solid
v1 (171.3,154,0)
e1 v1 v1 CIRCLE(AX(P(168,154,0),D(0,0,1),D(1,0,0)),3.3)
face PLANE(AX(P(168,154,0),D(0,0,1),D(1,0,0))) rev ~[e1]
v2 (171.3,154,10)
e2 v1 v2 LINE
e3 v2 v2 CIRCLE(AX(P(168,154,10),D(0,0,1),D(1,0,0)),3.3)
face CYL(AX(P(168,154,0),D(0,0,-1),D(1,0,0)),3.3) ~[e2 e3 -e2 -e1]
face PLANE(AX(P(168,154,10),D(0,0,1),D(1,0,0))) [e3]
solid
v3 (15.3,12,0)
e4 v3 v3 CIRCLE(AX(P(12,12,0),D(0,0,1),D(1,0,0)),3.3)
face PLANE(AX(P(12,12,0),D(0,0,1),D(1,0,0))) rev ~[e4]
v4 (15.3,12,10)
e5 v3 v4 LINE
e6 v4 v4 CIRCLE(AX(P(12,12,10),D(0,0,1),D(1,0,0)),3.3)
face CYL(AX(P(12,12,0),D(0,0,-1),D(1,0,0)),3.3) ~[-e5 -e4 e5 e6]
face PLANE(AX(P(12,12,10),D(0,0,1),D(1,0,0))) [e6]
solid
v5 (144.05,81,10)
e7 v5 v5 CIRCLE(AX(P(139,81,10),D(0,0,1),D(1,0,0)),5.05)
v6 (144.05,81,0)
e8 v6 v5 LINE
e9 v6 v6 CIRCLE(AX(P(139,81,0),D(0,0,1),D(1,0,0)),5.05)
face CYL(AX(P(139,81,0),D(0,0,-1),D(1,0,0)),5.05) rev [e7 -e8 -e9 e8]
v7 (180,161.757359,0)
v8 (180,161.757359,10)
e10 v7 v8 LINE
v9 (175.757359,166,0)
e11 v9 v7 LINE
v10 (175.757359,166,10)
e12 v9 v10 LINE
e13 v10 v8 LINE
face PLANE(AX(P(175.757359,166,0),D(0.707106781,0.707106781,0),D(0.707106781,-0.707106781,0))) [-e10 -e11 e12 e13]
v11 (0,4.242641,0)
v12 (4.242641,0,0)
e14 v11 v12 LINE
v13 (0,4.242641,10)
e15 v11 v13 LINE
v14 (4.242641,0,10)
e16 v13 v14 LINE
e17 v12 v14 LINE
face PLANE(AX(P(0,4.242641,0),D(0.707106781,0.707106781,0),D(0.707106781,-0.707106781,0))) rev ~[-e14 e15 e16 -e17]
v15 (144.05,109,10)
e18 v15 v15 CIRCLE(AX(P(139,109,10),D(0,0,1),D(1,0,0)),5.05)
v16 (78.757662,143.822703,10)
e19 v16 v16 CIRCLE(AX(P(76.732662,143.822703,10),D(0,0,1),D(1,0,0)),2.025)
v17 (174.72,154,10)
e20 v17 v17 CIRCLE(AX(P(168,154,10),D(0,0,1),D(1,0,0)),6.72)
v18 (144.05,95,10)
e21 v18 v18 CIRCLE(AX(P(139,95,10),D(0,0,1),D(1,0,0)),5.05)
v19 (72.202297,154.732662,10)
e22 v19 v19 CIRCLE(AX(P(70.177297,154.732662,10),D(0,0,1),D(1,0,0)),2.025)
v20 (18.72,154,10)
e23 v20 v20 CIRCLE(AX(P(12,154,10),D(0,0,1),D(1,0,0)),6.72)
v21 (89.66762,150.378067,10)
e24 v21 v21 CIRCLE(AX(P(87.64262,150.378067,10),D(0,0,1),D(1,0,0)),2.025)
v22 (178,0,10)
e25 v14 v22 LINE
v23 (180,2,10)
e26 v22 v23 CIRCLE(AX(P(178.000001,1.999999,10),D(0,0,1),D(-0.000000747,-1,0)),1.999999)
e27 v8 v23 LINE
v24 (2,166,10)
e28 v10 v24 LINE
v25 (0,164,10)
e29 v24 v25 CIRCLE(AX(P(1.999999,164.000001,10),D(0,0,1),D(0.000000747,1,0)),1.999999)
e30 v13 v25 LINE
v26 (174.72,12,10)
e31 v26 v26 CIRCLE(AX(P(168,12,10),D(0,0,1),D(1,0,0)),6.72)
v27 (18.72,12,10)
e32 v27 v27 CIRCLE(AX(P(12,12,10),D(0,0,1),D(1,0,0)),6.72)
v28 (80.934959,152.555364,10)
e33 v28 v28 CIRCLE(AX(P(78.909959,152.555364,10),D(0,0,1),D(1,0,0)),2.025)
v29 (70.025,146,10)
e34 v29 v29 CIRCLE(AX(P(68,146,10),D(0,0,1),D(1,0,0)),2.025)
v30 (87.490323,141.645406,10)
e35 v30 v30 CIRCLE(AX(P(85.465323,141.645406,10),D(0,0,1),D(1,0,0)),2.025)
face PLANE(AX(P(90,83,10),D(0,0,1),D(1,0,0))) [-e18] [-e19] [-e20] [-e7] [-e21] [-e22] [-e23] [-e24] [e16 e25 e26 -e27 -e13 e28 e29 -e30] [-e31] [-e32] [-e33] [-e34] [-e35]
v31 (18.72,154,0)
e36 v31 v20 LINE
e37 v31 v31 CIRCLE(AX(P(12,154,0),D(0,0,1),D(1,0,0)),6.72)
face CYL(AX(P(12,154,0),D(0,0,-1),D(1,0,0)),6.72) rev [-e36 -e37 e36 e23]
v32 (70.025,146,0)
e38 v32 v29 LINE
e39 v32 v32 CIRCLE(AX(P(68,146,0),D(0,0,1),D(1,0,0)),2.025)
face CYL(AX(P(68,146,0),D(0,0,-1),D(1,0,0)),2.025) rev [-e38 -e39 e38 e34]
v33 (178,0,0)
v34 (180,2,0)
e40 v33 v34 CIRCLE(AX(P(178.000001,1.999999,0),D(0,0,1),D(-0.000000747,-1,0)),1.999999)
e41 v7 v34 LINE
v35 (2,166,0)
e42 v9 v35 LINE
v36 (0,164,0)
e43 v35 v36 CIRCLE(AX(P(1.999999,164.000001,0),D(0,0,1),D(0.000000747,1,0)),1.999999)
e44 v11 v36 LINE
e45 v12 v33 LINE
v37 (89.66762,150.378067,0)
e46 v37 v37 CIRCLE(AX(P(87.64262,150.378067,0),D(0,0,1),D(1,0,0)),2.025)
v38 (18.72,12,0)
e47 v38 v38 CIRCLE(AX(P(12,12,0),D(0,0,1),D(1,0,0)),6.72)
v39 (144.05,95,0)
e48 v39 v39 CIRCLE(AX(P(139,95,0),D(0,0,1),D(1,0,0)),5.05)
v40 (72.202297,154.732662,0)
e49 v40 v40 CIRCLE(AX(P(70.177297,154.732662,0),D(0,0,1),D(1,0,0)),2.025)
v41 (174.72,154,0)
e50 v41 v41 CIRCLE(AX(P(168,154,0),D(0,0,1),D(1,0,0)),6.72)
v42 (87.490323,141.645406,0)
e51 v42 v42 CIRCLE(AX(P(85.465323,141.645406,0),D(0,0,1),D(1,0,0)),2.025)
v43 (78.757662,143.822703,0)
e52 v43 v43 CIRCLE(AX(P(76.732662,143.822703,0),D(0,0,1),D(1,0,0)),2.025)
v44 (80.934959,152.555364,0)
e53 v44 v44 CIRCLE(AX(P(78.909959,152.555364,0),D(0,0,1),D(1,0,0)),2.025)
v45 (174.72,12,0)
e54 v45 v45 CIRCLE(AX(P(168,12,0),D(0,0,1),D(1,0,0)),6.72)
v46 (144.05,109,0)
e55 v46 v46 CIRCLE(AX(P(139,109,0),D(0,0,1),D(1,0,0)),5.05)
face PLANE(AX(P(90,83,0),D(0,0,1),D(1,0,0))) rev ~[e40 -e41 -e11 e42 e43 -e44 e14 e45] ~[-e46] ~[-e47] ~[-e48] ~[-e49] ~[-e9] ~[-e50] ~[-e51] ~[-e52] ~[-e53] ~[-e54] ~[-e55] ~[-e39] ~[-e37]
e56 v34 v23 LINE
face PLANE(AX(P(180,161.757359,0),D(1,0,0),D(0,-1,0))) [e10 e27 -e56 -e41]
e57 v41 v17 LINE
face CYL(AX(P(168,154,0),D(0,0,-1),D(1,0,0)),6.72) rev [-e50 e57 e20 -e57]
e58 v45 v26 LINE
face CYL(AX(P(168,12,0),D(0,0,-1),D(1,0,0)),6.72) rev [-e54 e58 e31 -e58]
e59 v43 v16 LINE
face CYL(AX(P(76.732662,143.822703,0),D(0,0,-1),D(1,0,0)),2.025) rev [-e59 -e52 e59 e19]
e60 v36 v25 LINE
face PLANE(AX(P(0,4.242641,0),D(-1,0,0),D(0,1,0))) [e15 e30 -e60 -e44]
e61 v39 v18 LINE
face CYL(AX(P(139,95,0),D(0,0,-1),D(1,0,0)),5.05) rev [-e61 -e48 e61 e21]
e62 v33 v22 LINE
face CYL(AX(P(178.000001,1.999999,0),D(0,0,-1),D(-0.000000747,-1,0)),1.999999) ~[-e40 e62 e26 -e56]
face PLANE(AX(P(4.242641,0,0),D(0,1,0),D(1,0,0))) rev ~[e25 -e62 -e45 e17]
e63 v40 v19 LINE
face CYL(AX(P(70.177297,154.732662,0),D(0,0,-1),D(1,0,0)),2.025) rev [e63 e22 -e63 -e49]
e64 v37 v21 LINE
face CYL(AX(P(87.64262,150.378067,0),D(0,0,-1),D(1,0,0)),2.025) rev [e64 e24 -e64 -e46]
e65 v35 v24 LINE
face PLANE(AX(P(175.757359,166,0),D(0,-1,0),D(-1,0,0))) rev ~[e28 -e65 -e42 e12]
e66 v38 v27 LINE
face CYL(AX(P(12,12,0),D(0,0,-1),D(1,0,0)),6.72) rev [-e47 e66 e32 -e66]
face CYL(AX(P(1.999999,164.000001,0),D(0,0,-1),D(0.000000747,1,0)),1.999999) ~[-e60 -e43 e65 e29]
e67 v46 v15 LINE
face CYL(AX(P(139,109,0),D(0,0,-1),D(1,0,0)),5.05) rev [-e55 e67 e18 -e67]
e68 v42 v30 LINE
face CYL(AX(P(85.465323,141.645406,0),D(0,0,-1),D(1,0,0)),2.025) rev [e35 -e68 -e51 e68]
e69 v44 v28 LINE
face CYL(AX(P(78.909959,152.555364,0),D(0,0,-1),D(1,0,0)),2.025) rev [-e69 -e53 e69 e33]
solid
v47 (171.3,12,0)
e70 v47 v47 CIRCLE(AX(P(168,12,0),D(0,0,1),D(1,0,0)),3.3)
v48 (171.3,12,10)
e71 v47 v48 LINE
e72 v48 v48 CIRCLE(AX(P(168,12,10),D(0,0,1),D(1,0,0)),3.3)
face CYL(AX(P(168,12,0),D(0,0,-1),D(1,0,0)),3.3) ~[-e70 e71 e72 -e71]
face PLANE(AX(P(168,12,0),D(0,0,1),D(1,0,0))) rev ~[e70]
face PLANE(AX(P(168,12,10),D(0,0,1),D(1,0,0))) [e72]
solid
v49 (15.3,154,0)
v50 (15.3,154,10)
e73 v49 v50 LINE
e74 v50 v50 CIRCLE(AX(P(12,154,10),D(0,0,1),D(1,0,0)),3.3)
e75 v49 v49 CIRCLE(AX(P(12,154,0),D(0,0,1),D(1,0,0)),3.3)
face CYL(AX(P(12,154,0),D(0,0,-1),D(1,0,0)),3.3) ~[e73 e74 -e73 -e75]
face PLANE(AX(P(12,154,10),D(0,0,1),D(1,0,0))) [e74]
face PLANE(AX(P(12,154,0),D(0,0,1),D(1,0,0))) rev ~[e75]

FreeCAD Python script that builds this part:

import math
import FreeCAD as App
import Part
import Sketcher
from FreeCAD import Vector
Q = App.Units.Quantity

doc = App.newDocument("Part")
body = doc.addObject("PartDesign::Body", "Body")
body.AllowCompound = True

sketch1 = body.newObject("Sketcher::SketchObject", "Sketch")
sketch1.AttachmentSupport = (doc.getObject("XY_Plane"), [""])
sketch1.MapMode = "FlatFace"
sketch1.addGeometry([
    Part.ArcOfCircle(Part.Circle(Vector(2, 164, 0), Vector(0, 0, 1), 2), math.radians(90), math.radians(180)),
    Part.LineSegment(Vector(0, 164, 0), Vector(0, 4.2, 0)),
    Part.LineSegment(Vector(0, 4.2, 0), Vector(4.2, 0, 0)),
    Part.LineSegment(Vector(4.2, 0, 0), Vector(178, 0, 0)),
    Part.ArcOfCircle(Part.Circle(Vector(178, 2, 0), Vector(0, 0, 1), 2), math.radians(-90), math.radians(0)),
    Part.LineSegment(Vector(180, 2, 0), Vector(180, 161.8, 0)),
    Part.LineSegment(Vector(180, 161.8, 0), Vector(175.8, 166, 0)),
    Part.LineSegment(Vector(175.8, 166, 0), Vector(2, 166, 0)),
    Part.Circle(Vector(12, 12, 0), Vector(0, 0, 1), 6.7),
    Part.Circle(Vector(168, 12, 0), Vector(0, 0, 1), 6.7),
    Part.Circle(Vector(139, 81, 0), Vector(0, 0, 1), 5),
    Part.Circle(Vector(12, 154, 0), Vector(0, 0, 1), 6.7),
    Part.Circle(Vector(68, 146, 0), Vector(0, 0, 1), 2),
    Part.Circle(Vector(76.7, 143.8, 0), Vector(0, 0, 1), 2),
    Part.Circle(Vector(85.5, 141.6, 0), Vector(0, 0, 1), 2),
    Part.Circle(Vector(87.6, 150.4, 0), Vector(0, 0, 1), 2),
    Part.Circle(Vector(70.2, 154.7, 0), Vector(0, 0, 1), 2),
    Part.Circle(Vector(78.9, 152.6, 0), Vector(0, 0, 1), 2),
    Part.Circle(Vector(139, 95, 0), Vector(0, 0, 1), 5),
    Part.Circle(Vector(139, 109, 0), Vector(0, 0, 1), 5),
    Part.Circle(Vector(168, 154, 0), Vector(0, 0, 1), 6.7),
    Part.Circle(Vector(12, 154, 0), Vector(0, 0, 1), 3.3),
    Part.Circle(Vector(168, 154, 0), Vector(0, 0, 1), 3.3),
    Part.Circle(Vector(168, 12, 0), Vector(0, 0, 1), 3.3),
    Part.Circle(Vector(12, 12, 0), Vector(0, 0, 1), 3.3),
], False)
sketch1.addConstraint([
    Sketcher.Constraint("Tangent", 0, 2, 1, 1),
    Sketcher.Constraint("Coincident", 1, 2, 2, 1),
    Sketcher.Constraint("Coincident", 2, 2, 3, 1),
    Sketcher.Constraint("Tangent", 3, 2, 4, 1),
    Sketcher.Constraint("Tangent", 4, 2, 5, 1),
    Sketcher.Constraint("Coincident", 5, 2, 6, 1),
    Sketcher.Constraint("Coincident", 6, 2, 7, 1),
    Sketcher.Constraint("Tangent", 7, 2, 0, 1),
    Sketcher.Constraint("Vertical", 1),
    Sketcher.Constraint("Horizontal", 3),
    Sketcher.Constraint("Vertical", 5),
    Sketcher.Constraint("Horizontal", 7),
    Sketcher.Constraint("Coincident", 21, 3, 11, 3),
    Sketcher.Constraint("Coincident", 22, 3, 20, 3),
    Sketcher.Constraint("Coincident", 23, 3, 9, 3),
    Sketcher.Constraint("Coincident", 24, 3, 8, 3),
    Sketcher.Constraint("Equal", 0, 4),
    Sketcher.Constraint("Equal", 8, 9),
    Sketcher.Constraint("Equal", 9, 11),
    Sketcher.Constraint("Equal", 12, 13),
    Sketcher.Constraint("Equal", 13, 14),
    Sketcher.Constraint("Equal", 14, 15),
    Sketcher.Constraint("Equal", 15, 16),
    Sketcher.Constraint("Equal", 16, 17),
    Sketcher.Constraint("Equal", 10, 18),
    Sketcher.Constraint("Equal", 18, 19),
    Sketcher.Constraint("Equal", 11, 20),
    Sketcher.Constraint("Equal", 21, 22),
    Sketcher.Constraint("Equal", 22, 23),
    Sketcher.Constraint("Equal", 23, 24),
    Sketcher.Constraint("PointOnObject", 0, 2, -2),
    Sketcher.Constraint("PointOnObject", 2, 2, -1),
    Sketcher.Constraint("Parallel", 2, 6),
    Sketcher.Constraint("Horizontal", 8, 3, 9, 3),
    Sketcher.Constraint("Horizontal", 11, 3, 20, 3),
    Sketcher.Constraint("Vertical", 8, 3, 11, 3),
    Sketcher.Constraint("Vertical", 10, 3, 18, 3),
    Sketcher.Constraint("Vertical", 18, 3, 19, 3),
    Sketcher.Constraint("Vertical", 9, 3, 20, 3),
    Sketcher.Constraint("Equal", 3, 7),
    Sketcher.Constraint("Radius", 0, Q("1.999999 mm")),
    Sketcher.Constraint("Diameter", 10, Q("10.1 mm")),
    Sketcher.Constraint("Diameter", 21, Q("6.6 mm")),
    Sketcher.Constraint("Diameter", 8, Q("13.44 mm")),
    Sketcher.Constraint("Diameter", 12, Q("4.05 mm")),
    Sketcher.Constraint("Angle", 2, Q("-45 deg")),
    Sketcher.Constraint("Distance", 2, Q("6 mm")),
    Sketcher.Constraint("DistanceY", -1, 1, 0, 3, Q("164.000001 mm")),
    Sketcher.Constraint("DistanceX", -1, 1, 4, 3, Q("178.000001 mm")),
    Sketcher.Constraint("DistanceX", -1, 1, 8, 3, Q("12 mm")),
    Sketcher.Constraint("DistanceY", -1, 1, 8, 3, Q("12 mm")),
    Sketcher.Constraint("DistanceX", -1, 1, 9, 3, Q("168 mm")),
    Sketcher.Constraint("DistanceX", -1, 1, 10, 3, Q("139 mm")),
    Sketcher.Constraint("DistanceY", -1, 1, 10, 3, Q("81 mm")),
    Sketcher.Constraint("DistanceY", -1, 1, 11, 3, Q("154 mm")),
    Sketcher.Constraint("DistanceX", -1, 1, 12, 3, Q("68 mm")),
    Sketcher.Constraint("DistanceY", -1, 1, 12, 3, Q("146 mm")),
    Sketcher.Constraint("DistanceY", -1, 1, 18, 3, Q("95 mm")),
    Sketcher.Constraint("DistanceY", -1, 1, 19, 3, Q("109 mm")),
    Sketcher.Constraint("DistanceY", 13, 3, 0, 3, Q("20.177298 mm")),
    Sketcher.Constraint("DistanceY", 17, 3, 16, 3, Q("2.177298 mm")),
    Sketcher.Constraint("DistanceX", -1, 1, 15, 3, Q("87.64262 mm")),
    Sketcher.Constraint("DistanceY", -1, 1, 16, 3, Q("154.732662 mm")),
    Sketcher.Constraint("DistanceX", -1, 1, 17, 3, Q("78.909959 mm")),
    Sketcher.Constraint("DistanceX", 13, 3, 14, 3, Q("8.732661 mm")),
    Sketcher.Constraint("DistanceY", 14, 3, 15, 3, Q("8.732661 mm")),
    Sketcher.Constraint("DistanceX", -1, 1, 13, 3, Q("76.732662 mm")),
    Sketcher.Constraint("DistanceY", -1, 1, 14, 3, Q("141.645406 mm")),
    Sketcher.Constraint("DistanceX", -1, 1, 16, 3, Q("70.177297 mm")),
])
pad1 = body.newObject("PartDesign::Pad", "Pad")
pad1.Profile = sketch1
pad1.Length = 10

doc.recompute()
